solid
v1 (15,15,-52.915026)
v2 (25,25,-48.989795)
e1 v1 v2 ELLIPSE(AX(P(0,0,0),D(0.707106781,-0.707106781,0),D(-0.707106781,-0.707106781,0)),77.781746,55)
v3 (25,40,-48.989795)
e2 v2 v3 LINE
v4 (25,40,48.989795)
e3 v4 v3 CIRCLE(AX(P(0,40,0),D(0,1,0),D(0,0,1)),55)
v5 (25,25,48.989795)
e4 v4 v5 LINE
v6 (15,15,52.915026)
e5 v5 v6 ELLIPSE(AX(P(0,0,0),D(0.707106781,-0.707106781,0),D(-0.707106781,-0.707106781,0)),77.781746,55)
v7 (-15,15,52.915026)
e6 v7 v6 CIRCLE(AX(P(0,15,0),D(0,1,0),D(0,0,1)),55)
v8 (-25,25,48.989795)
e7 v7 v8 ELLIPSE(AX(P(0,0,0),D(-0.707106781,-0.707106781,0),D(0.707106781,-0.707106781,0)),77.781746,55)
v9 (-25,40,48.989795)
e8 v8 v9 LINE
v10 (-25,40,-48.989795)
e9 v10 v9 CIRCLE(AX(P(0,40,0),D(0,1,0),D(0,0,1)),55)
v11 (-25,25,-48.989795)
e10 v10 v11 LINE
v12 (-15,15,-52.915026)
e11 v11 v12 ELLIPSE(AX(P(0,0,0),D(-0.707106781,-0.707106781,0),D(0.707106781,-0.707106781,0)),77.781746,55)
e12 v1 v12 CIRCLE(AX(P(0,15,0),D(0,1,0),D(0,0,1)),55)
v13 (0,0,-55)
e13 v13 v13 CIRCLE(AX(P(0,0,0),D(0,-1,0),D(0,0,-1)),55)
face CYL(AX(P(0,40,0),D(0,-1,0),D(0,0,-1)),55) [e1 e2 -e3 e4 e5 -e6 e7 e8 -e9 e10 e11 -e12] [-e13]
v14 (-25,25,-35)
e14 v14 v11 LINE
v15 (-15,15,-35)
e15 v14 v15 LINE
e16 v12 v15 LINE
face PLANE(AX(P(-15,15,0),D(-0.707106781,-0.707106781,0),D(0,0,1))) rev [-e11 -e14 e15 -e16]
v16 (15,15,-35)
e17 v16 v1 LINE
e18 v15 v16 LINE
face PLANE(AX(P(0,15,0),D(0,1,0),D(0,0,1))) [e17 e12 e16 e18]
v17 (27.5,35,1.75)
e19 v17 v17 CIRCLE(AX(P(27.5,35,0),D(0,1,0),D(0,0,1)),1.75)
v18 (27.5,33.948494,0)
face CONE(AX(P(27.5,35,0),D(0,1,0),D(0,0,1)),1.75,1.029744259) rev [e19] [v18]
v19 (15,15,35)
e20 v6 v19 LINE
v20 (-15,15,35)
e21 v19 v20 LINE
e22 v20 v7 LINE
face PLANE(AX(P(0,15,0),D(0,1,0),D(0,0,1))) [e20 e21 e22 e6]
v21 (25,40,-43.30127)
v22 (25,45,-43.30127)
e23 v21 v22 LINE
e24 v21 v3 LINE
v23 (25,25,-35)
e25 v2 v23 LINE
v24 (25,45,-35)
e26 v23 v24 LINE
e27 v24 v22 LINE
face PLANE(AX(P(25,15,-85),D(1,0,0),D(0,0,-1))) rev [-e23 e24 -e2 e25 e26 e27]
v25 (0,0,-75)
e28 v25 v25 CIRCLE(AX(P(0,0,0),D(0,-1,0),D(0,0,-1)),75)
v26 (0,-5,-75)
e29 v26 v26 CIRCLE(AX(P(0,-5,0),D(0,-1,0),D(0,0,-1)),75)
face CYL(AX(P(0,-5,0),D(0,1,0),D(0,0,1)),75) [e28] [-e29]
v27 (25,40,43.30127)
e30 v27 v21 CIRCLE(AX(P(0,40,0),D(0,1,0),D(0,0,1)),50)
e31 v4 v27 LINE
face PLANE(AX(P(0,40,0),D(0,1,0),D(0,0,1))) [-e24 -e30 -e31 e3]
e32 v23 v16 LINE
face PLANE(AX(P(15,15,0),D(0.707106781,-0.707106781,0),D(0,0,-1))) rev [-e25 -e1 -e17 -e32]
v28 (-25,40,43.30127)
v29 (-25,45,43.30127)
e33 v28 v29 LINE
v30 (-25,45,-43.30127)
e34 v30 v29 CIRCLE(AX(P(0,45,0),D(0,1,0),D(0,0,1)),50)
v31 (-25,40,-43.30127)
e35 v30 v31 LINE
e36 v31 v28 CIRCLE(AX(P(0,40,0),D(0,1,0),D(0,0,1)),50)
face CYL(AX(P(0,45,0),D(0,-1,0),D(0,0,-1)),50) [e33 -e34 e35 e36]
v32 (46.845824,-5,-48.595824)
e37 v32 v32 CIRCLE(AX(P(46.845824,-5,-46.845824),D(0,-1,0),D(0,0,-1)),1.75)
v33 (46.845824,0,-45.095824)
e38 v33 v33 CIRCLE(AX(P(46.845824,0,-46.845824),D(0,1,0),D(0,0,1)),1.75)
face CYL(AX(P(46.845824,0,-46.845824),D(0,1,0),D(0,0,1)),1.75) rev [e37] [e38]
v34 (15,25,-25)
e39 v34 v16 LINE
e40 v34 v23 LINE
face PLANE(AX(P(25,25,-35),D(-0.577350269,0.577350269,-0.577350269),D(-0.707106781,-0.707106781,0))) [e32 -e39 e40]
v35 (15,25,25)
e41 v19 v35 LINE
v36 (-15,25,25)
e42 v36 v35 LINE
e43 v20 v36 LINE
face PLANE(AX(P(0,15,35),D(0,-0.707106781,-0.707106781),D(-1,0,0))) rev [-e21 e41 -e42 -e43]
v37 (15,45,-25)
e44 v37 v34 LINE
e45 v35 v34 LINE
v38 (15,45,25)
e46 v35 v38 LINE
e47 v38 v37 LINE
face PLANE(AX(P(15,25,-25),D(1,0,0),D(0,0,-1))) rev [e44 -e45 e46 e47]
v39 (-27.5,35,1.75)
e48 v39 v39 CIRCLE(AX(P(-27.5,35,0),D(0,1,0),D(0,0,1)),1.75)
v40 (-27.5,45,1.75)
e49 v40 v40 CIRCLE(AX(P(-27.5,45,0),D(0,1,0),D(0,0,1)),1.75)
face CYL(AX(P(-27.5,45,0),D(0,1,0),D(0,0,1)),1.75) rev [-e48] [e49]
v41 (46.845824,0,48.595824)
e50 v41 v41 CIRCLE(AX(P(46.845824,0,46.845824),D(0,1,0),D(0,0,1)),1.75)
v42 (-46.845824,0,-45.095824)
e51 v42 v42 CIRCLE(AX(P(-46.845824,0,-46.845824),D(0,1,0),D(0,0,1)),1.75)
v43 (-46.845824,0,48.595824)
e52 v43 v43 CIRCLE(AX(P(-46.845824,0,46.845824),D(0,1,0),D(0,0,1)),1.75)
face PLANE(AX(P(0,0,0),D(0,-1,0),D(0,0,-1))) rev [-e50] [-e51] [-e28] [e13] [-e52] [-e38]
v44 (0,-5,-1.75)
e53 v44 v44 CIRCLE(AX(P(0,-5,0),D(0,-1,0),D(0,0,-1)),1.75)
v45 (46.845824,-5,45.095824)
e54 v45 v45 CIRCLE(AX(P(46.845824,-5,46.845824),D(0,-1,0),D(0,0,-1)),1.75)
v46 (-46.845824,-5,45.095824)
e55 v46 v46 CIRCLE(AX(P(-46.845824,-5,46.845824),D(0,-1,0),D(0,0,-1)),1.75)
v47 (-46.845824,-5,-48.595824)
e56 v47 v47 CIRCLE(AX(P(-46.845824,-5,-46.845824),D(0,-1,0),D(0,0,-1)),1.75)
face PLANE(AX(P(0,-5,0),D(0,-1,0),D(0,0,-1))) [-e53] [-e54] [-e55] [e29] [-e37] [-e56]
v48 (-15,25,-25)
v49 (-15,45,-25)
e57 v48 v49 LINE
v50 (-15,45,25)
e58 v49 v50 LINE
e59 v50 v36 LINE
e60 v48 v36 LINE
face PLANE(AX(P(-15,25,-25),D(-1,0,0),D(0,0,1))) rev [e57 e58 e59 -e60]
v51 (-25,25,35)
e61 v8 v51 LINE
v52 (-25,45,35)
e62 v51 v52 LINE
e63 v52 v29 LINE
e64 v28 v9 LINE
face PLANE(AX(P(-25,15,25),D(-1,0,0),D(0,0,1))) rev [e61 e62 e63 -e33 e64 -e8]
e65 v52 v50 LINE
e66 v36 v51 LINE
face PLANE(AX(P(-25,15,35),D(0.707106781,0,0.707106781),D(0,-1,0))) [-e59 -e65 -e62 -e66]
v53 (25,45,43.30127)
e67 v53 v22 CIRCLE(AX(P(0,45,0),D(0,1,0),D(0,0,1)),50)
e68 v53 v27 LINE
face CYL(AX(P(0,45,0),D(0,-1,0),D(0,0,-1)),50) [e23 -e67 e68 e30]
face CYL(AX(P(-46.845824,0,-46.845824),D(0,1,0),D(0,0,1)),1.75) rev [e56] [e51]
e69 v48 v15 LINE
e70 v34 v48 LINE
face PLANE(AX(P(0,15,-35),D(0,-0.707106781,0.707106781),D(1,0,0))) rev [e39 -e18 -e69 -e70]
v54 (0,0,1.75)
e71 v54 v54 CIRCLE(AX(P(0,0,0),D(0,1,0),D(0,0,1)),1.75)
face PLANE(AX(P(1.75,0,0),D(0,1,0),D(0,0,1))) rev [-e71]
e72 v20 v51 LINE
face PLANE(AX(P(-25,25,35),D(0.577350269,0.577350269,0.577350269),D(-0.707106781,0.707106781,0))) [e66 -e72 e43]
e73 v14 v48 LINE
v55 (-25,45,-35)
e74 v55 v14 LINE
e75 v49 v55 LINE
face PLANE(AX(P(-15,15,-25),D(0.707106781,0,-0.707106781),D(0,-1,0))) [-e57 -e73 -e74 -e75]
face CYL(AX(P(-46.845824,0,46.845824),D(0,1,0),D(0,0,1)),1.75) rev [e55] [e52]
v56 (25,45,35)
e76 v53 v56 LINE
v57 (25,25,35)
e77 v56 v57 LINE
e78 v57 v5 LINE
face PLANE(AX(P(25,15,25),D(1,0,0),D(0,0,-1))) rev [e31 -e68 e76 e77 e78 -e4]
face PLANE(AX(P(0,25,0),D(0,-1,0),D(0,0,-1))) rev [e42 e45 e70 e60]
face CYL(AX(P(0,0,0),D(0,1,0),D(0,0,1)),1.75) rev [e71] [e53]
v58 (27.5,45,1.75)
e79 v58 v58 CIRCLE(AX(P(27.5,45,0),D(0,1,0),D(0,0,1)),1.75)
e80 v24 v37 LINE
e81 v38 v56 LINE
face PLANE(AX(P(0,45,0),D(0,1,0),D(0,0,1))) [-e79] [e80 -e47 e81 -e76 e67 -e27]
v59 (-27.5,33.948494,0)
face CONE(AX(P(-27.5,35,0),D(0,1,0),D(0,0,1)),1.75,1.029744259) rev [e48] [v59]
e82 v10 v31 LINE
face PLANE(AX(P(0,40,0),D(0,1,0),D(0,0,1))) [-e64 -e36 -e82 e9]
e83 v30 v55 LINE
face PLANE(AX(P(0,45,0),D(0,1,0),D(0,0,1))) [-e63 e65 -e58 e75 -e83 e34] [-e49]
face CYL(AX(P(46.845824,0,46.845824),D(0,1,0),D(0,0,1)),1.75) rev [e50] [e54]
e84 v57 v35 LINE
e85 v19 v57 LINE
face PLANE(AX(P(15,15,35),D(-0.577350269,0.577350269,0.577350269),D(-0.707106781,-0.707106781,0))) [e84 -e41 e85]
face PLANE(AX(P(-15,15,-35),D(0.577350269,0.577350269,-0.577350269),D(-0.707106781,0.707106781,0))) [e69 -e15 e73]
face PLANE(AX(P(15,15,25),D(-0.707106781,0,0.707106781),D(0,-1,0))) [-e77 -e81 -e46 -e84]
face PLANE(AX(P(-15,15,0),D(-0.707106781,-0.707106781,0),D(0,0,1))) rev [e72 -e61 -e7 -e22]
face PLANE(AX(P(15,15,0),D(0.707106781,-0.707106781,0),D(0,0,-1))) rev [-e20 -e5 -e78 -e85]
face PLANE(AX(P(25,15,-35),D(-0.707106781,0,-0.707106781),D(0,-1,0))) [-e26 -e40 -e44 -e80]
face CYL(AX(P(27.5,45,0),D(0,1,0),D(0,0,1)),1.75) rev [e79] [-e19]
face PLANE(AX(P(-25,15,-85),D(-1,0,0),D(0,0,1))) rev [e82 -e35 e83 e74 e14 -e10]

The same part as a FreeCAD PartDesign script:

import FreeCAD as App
import Part
import Sketcher
from FreeCAD import Vector
Q = App.Units.Quantity


def edges_at(feature, points):
    """Names of the edges that pass closest to the given points."""
    edges = feature.Shape.Edges
    near = lambda p: min(range(len(edges)), key=lambda i: edges[i].distToShape(Part.Vertex(*p))[0])
    return sorted({f"Edge{near(p) + 1}" for p in points})


def add_polygon(sketch, points):
    """Adds a closed chain of lines whose ends are joined by coincident constraints."""
    first, n = sketch.GeometryCount, len(points)
    for a, b in zip(points, points[1:] + points[:1]):
        sketch.addGeometry(Part.LineSegment(App.Vector(*a, 0), App.Vector(*b, 0)), False)
    for i in range(n):
        sketch.addConstraint(Sketcher.Constraint("Coincident", first + i, 2, first + (i + 1) % n, 1))

doc = App.newDocument("Part")
body = doc.addObject("PartDesign::Body", "Body")

sketch1 = doc.addObject("Sketcher::SketchObject", "Sketch")
body.addObject(sketch1)
sketch1.AttachmentSupport = (doc.XZ_Plane, [""])
sketch1.MapMode = "FlatFace"
sketch1.addGeometry(Part.Circle(Vector(0, 0, 0), Vector(0, 0, 1), 55), False)
sketch1.addConstraint([
    Sketcher.Constraint("Coincident", 0, 3, -1, 1),
    Sketcher.Constraint("Diameter", 0, 110.0),
])
pad1 = doc.addObject("PartDesign::Pad", "Pad")
body.addObject(pad1)
pad1.Profile = sketch1
pad1.Length = 40
pad1.Reversed = True

sketch2 = doc.addObject("Sketcher::SketchObject", "Sketch001")
body.addObject(sketch2)
sketch2.AttachmentSupport = (doc.XZ_Plane, [""])
sketch2.MapMode = "FlatFace"
sketch2.addGeometry(Part.Circle(Vector(0, 0, 0), Vector(0, 0, 1), 75), False)
sketch2.addConstraint([
    Sketcher.Constraint("Coincident", 0, 3, -1, 1),
    Sketcher.Constraint("Diameter", 0, 150.0),
])
pad2 = doc.addObject("PartDesign::Pad", "Pad001")
body.addObject(pad2)
pad2.Profile = sketch2
pad2.Length = 5

sketch3 = doc.addObject("Sketcher::SketchObject", "Sketch002")
body.addObject(sketch3)
sketch3.AttachmentSupport = (doc.XZ_Plane, [""])
sketch3.MapMode = "FlatFace"
sketch3.AttachmentOffset = App.Placement(Vector(0, 0, -40), App.Rotation())
sketch3.addGeometry(Part.Circle(Vector(0, 0, 0), Vector(0, 0, 1), 50), False)
sketch3.addConstraint([
    Sketcher.Constraint("Coincident", 0, 3, -1, 1),
    Sketcher.Constraint("Diameter", 0, 100.0),
])
pad3 = doc.addObject("PartDesign::Pad", "Pad002")
body.addObject(pad3)
pad3.Profile = sketch3
pad3.Length = 5
pad3.Reversed = True

sketch4 = doc.addObject("Sketcher::SketchObject", "Sketch003")
body.addObject(sketch4)
sketch4.AttachmentSupport = (doc.XZ_Plane, [""])
sketch4.MapMode = "FlatFace"
sketch4.AttachmentOffset = App.Placement(Vector(0, 0, -45), App.Rotation())
sketch4.addGeometry([
    Part.Circle(Vector(-27.5, 0, 0), Vector(0, 0, 1), 1.8),
    Part.Circle(Vector(27.5, 0, 0), Vector(0, 0, 1), 1.8),
], False)
sketch4.addConstraint([
    Sketcher.Constraint("Equal", 0, 1),
    Sketcher.Constraint("Symmetric", 0, 3, 1, 3, -1, 1),
    Sketcher.Constraint("PointOnObject", 0, 3, -1),
    Sketcher.Constraint("Diameter", 0, 3.5),
    Sketcher.Constraint("DistanceX", 0, 3, 1, 3, 55.0),
])
doc.recompute()
hole = doc.addObject("PartDesign::Hole", "Hole")
body.addObject(hole)
hole.Profile = sketch4
hole.ThreadType = "None"
hole.Diameter = 3.5
hole.DepthType = "Dimension"
hole.Depth = 10
hole.DrillPoint = "Angled"
hole.DrillPointAngle = 118
hole.Reversed = True

sketch5 = doc.addObject("Sketcher::SketchObject", "Sketch004")
body.addObject(sketch5)
sketch5.AttachmentSupport = (doc.XZ_Plane, [""])
sketch5.MapMode = "FlatFace"
sketch5.AttachmentOffset = App.Placement(Vector(0, 0, -45), App.Rotation())
add_polygon(sketch5, [(-25, -85), (-25, -25), (25, -25), (25, -85)])
add_polygon(sketch5, [(-25, 25), (-25, 85), (25, 85), (25, 25)])
sketch5.addConstraint([
    Sketcher.Constraint("Vertical", 0),
    Sketcher.Constraint("Horizontal", 1),
    Sketcher.Constraint("Vertical", 2),
    Sketcher.Constraint("Horizontal", 3),
    Sketcher.Constraint("Vertical", 4),
    Sketcher.Constraint("Horizontal", 5),
    Sketcher.Constraint("Vertical", 6),
    Sketcher.Constraint("Horizontal", 7),
    Sketcher.Constraint("Symmetric", 2, 2, 4, 2, -1, 1),
    Sketcher.Constraint("Symmetric", 0, 2, 6, 2, -1, 1),
    Sketcher.Constraint("Vertical", 3, 2, 4, 2),
    Sketcher.Constraint("DistanceX", 1, 1, 1, 2, 50.0),
    Sketcher.Constraint("DistanceY", 0, 1, 0, 2, 60.0),
    Sketcher.Constraint("DistanceY", 0, 2, -1, 1, 25.0),
])
pocket1 = doc.addObject("PartDesign::Pocket", "Pocket")
body.addObject(pocket1)
pocket1.Profile = sketch5
pocket1.Length = 30
pocket1.Reversed = True
doc.recompute()

chamfer = doc.addObject("PartDesign::Chamfer", "Chamfer")
body.addObject(chamfer)
chamfer.Base = (pocket1, edges_at(pocket1, [
    (25, 15, -36.995),
    (-25, 15, -36.995),
    (-25, 30, -25),
    (0, 15, -25),
    (25, 30, -25),
    (25, 15, 36.995),
    (25, 30, 25),
    (-25, 15, 36.995),
    (0, 15, 25),
    (-25, 30, 25),
]))
chamfer.Size = 10

sketch6 = doc.addObject("Sketcher::SketchObject", "Sketch005")
body.addObject(sketch6)
sketch6.AttachmentSupport = (doc.XZ_Plane, [""])
sketch6.MapMode = "FlatFace"
sketch6.AttachmentOffset = App.Placement(Vector(0, 0, -45), App.Rotation())
add_polygon(sketch6, [(-15, -25), (-15, 25), (15, 25), (15, -25)])
sketch6.addConstraint([
    Sketcher.Constraint("Vertical", 0),
    Sketcher.Constraint("Horizontal", 1),
    Sketcher.Constraint("Vertical", 2),
    Sketcher.Constraint("Horizontal", 3),
    Sketcher.Constraint("Symmetric", 0, 2, 2, 2, -1, 1),
    Sketcher.Constraint("DistanceX", 1, 1, 1, 2, 30.0),
    Sketcher.Constraint("DistanceY", 0, 1, 0, 2, 50.0),
])
pocket2 = doc.addObject("PartDesign::Pocket", "Pocket001")
body.addObject(pocket2)
pocket2.Profile = sketch6
pocket2.Length = 20
pocket2.Reversed = True

sketch7 = doc.addObject("Sketcher::SketchObject", "Sketch006")
body.addObject(sketch7)
sketch7.AttachmentSupport = (doc.YZ_Plane, [""])
sketch7.MapMode = "FlatFace"
add_polygon(sketch7, [(-11.1, 0), (0, 0), (0, 1.8), (-10, 1.8)])
sketch7.addConstraint([
    Sketcher.Constraint("Horizontal", 0),
    Sketcher.Constraint("Vertical", 1),
    Sketcher.Constraint("Horizontal", 2),
    Sketcher.Constraint("Coincident", 0, 2, -1, 1),
    Sketcher.Constraint("DistanceX", 2, 2, 2, 1, 10.0),
    Sketcher.Constraint("Angle", 3, Q("-121 deg")),
    Sketcher.Constraint("DistanceY", 1, 1, 1, 2, 1.75),
])
groove = doc.addObject("PartDesign::Groove", "Groove")
body.addObject(groove)
groove.Profile = sketch7
groove.ReferenceAxis = (sketch7, ["H_Axis"])
groove.Angle = 360
doc.recompute()

datumline = doc.addObject("PartDesign::Line", "DatumLine")
body.addObject(datumline)
datumline.Placement = App.Placement(Vector(0, 0, 0), App.Rotation(Vector(0, 0, 1), Vector(0.707106781, 0, 0.707106781)))
linearpattern = doc.addObject("PartDesign::LinearPattern", "LinearPattern")
body.addObject(linearpattern)
linearpattern.Originals = [groove]
linearpattern.Direction = (datumline, [""])
linearpattern.Mode = "offset"
linearpattern.Offset = 66.25
linearpattern.Occurrences = 2
body.Tip = linearpattern
doc.recompute()

datumline2 = doc.addObject("PartDesign::Line", "DatumLine001")
body.addObject(datumline2)
datumline2.Placement = App.Placement(Vector(0, 0, 0), App.Rotation(Vector(0, 0, 1), Vector(-0.707106781, 0, -0.707106781)))
linearpattern2 = doc.addObject("PartDesign::LinearPattern", "LinearPattern001")
body.addObject(linearpattern2)
linearpattern2.Originals = [groove]
linearpattern2.Direction = (datumline2, [""])
linearpattern2.Mode = "offset"
linearpattern2.Offset = 66.25
linearpattern2.Occurrences = 2
body.Tip = linearpattern2
doc.recompute()

datumline3 = doc.addObject("PartDesign::Line", "DatumLine002")
body.addObject(datumline3)
datumline3.Placement = App.Placement(Vector(0, 0, 0), App.Rotation(Vector(0, 0, 1), Vector(-0.707106781, 0, 0.707106781)))
linearpattern3 = doc.addObject("PartDesign::LinearPattern", "LinearPattern002")
body.addObject(linearpattern3)
linearpattern3.Originals = [groove]
linearpattern3.Direction = (datumline3, [""])
linearpattern3.Mode = "offset"
linearpattern3.Offset = 66.25
linearpattern3.Occurrences = 2
body.Tip = linearpattern3
doc.recompute()

datumline4 = doc.addObject("PartDesign::Line", "DatumLine003")
body.addObject(datumline4)
datumline4.Placement = App.Placement(Vector(0, 0, 0), App.Rotation(Vector(0, 0, 1), Vector(0.707106781, 0, -0.707106781)))
linearpattern4 = doc.addObject("PartDesign::LinearPattern", "LinearPattern003")
body.addObject(linearpattern4)
linearpattern4.Originals = [groove]
linearpattern4.Direction = (datumline4, [""])
linearpattern4.Mode = "offset"
linearpattern4.Offset = 66.25
linearpattern4.Occurrences = 2
body.Tip = linearpattern4

doc.recompute()
